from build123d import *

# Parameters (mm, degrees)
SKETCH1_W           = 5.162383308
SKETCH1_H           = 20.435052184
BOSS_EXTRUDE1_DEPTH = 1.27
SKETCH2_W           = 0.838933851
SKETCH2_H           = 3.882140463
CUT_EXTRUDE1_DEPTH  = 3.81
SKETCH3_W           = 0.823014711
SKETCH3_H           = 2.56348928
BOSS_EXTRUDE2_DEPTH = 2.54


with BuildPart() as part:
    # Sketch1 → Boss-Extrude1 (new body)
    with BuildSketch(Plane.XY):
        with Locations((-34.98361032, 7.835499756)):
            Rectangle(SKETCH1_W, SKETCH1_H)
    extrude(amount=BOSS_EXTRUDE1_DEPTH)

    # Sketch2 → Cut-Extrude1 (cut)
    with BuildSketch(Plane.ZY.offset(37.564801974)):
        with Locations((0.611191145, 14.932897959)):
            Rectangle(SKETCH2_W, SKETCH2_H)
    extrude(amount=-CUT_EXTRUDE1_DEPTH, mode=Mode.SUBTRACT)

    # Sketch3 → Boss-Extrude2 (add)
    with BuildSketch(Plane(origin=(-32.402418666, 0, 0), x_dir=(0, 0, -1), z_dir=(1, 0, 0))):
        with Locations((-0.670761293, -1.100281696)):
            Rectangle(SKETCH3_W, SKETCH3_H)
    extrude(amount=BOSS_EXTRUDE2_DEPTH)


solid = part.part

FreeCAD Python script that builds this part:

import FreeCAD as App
import Part
import Sketcher
from FreeCAD import Vector
Q = App.Units.Quantity

doc = App.newDocument("Part")
body = doc.addObject("PartDesign::Body", "Body")

sketch1 = body.newObject("Sketcher::SketchObject", "Sketch")
sketch1.AttachmentSupport = (doc.getObject("XY_Plane"), [""])
sketch1.MapMode = "FlatFace"
sketch1.addGeometry(Part.LineSegment(Vector(-37.564802, 18.053026, 0), Vector(-37.564802, -2.382026, 0)), False)
sketch1.addGeometry(Part.LineSegment(Vector(-37.564802, -2.382026, 0), Vector(-32.402419, -2.382026, 0)), False)
sketch1.addGeometry(Part.LineSegment(Vector(-32.402419, -2.382026, 0), Vector(-32.402419, 18.053026, 0)), False)
sketch1.addGeometry(Part.LineSegment(Vector(-32.402419, 18.053026, 0), Vector(-37.564802, 18.053026, 0)), False)
sketch1.addConstraint(Sketcher.Constraint("Coincident", 0, 2, 1, 1))
sketch1.addConstraint(Sketcher.Constraint("Coincident", 1, 2, 2, 1))
sketch1.addConstraint(Sketcher.Constraint("Coincident", 2, 2, 3, 1))
sketch1.addConstraint(Sketcher.Constraint("Coincident", 3, 2, 0, 1))
sketch1.addConstraint(Sketcher.Constraint("Vertical", 0))
sketch1.addConstraint(Sketcher.Constraint("Horizontal", 1))
sketch1.addConstraint(Sketcher.Constraint("Vertical", 2))
sketch1.addConstraint(Sketcher.Constraint("Horizontal", 3))
sketch1.addConstraint(Sketcher.Constraint("DistanceX", 0, 2, -1, 1, Q("37.564802 mm")))
sketch1.addConstraint(Sketcher.Constraint("DistanceX", 1, 1, 1, 2, Q("5.162383 mm")))
sketch1.addConstraint(Sketcher.Constraint("DistanceY", 0, 2, 0, 1, Q("20.435052 mm")))
sketch1.addConstraint(Sketcher.Constraint("DistanceY", 0, 2, -1, 1, Q("2.382026 mm")))
pad1 = body.newObject("PartDesign::Pad", "Pad")
pad1.Profile = sketch1
pad1.Length = Q("0.05 in")

sketch2 = body.newObject("Sketcher::SketchObject", "Sketch001")
sketch2.AttachmentSupport = (doc.getObject("YZ_Plane"), [""])
sketch2.MapMode = "FlatFace"
sketch2.AttachmentOffset = App.Placement(Vector(0, 0, -37.564802), App.Rotation())
sketch2.addGeometry(Part.LineSegment(Vector(16.873968, 0.191724, 0), Vector(12.991828, 0.191724, 0)), False)
sketch2.addGeometry(Part.LineSegment(Vector(12.991828, 0.191724, 0), Vector(12.991828, 1.030658, 0)), False)
sketch2.addGeometry(Part.LineSegment(Vector(12.991828, 1.030658, 0), Vector(16.873968, 1.030658, 0)), False)
sketch2.addGeometry(Part.LineSegment(Vector(16.873968, 1.030658, 0), Vector(16.873968, 0.191724, 0)), False)
sketch2.addConstraint(Sketcher.Constraint("Coincident", 0, 2, 1, 1))
sketch2.addConstraint(Sketcher.Constraint("Coincident", 1, 2, 2, 1))
sketch2.addConstraint(Sketcher.Constraint("Coincident", 2, 2, 3, 1))
sketch2.addConstraint(Sketcher.Constraint("Coincident", 3, 2, 0, 1))
sketch2.addConstraint(Sketcher.Constraint("Horizontal", 0))
sketch2.addConstraint(Sketcher.Constraint("Vertical", 1))
sketch2.addConstraint(Sketcher.Constraint("Horizontal", 2))
sketch2.addConstraint(Sketcher.Constraint("Vertical", 3))
sketch2.addConstraint(Sketcher.Constraint("DistanceX", 0, 2, 0, 1, Q("3.88214 mm")))
sketch2.addConstraint(Sketcher.Constraint("DistanceY", 1, 1, 1, 2, Q("0.838934 mm")))
sketch2.addConstraint(Sketcher.Constraint("DistanceY", -1, 1, 1, 2, Q("1.030658 mm")))
sketch2.addConstraint(Sketcher.Constraint("DistanceX", -1, 1, 2, 2, Q("16.873968 mm")))
pocket1 = body.newObject("PartDesign::Pocket", "Pocket")
pocket1.Profile = sketch2
pocket1.Length = Q("0.15 in")
pocket1.Reversed = True

sketch3 = body.newObject("Sketcher::SketchObject", "Sketch002")
sketch3.AttachmentSupport = (doc.getObject("YZ_Plane"), [""])
sketch3.MapMode = "FlatFace"
sketch3.AttachmentOffset = App.Placement(Vector(0, 0, -32.402419), App.Rotation())
sketch3.addGeometry(Part.LineSegment(Vector(0.181463, 1.082269, 0), Vector(-2.382026, 1.082269, 0)), False)
sketch3.addGeometry(Part.LineSegment(Vector(-2.382026, 1.082269, 0), Vector(-2.382026, 0.259254, 0)), False)
sketch3.addGeometry(Part.LineSegment(Vector(-2.382026, 0.259254, 0), Vector(0.181463, 0.259254, 0)), False)
sketch3.addGeometry(Part.LineSegment(Vector(0.181463, 0.259254, 0), Vector(0.181463, 1.082269, 0)), False)
sketch3.addConstraint(Sketcher.Constraint("Coincident", 0, 2, 1, 1))
sketch3.addConstraint(Sketcher.Constraint("Coincident", 1, 2, 2, 1))
sketch3.addConstraint(Sketcher.Constraint("Coincident", 2, 2, 3, 1))
sketch3.addConstraint(Sketcher.Constraint("Coincident", 3, 2, 0, 1))
sketch3.addConstraint(Sketcher.Constraint("Horizontal", 0))
sketch3.addConstraint(Sketcher.Constraint("Vertical", 1))
sketch3.addConstraint(Sketcher.Constraint("Horizontal", 2))
sketch3.addConstraint(Sketcher.Constraint("Vertical", 3))
sketch3.addConstraint(Sketcher.Constraint("DistanceX", 0, 2, 0, 1, Q("2.563489 mm")))
sketch3.addConstraint(Sketcher.Constraint("DistanceY", 1, 2, 1, 1, Q("0.823015 mm")))
sketch3.addConstraint(Sketcher.Constraint("DistanceY", -1, 1, 0, 2, Q("1.082269 mm")))
sketch3.addConstraint(Sketcher.Constraint("DistanceX", 0, 2, -1, 1, Q("2.382026 mm")))
pad2 = body.newObject("PartDesign::Pad", "Pad001")
pad2.Profile = sketch3
pad2.Length = Q("0.1 in")

doc.recompute()
